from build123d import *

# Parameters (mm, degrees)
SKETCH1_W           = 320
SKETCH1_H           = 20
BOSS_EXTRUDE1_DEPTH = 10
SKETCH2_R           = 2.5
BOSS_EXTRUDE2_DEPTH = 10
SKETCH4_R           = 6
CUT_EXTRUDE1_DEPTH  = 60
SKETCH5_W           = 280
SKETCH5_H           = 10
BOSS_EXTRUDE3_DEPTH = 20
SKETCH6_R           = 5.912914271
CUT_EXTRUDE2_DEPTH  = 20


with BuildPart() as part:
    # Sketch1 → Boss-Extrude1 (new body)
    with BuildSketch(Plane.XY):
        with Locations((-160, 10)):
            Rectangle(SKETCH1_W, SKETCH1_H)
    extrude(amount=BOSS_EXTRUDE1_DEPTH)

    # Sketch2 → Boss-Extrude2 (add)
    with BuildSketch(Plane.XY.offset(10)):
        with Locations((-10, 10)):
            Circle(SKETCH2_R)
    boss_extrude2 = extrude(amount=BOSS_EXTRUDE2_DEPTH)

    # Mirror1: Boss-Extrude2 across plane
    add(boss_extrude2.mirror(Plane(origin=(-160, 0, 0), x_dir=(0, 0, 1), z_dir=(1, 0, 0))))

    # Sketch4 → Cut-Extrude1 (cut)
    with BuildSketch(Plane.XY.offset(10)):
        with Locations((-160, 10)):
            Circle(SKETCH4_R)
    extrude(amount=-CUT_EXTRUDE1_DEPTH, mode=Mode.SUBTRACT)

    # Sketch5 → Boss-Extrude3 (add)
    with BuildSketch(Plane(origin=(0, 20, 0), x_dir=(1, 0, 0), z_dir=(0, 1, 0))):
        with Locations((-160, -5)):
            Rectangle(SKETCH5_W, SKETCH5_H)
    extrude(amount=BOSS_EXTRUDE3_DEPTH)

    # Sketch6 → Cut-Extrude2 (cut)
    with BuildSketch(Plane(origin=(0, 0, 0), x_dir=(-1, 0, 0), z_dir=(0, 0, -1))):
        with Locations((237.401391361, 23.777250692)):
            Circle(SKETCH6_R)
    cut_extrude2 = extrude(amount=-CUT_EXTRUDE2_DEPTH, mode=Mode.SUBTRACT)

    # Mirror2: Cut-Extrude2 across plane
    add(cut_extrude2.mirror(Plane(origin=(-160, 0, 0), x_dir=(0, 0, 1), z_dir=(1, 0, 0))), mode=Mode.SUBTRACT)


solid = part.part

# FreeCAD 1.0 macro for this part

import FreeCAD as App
import Part
import Sketcher

doc = App.newDocument("Part")
body = doc.addObject("PartDesign::Body", "Body")

# Sketch on XY plane
sketch1 = body.newObject("Sketcher::SketchObject", "Sketch")
sketch1.AttachmentSupport = (doc.getObject("XY_Plane"), [""])
sketch1.MapMode = "FlatFace"
sketch1.addGeometry([
    Part.LineSegment(App.Vector(-320, 20, 0), App.Vector(-320, 0, 0)),
    Part.LineSegment(App.Vector(-320, 0, 0), App.Vector(0, 0, 0)),
    Part.LineSegment(App.Vector(0, 0, 0), App.Vector(0, 20, 0)),
    Part.LineSegment(App.Vector(0, 20, 0), App.Vector(-320, 20, 0)),
], False)
sketch1.addConstraint([
    Sketcher.Constraint("Coincident", 0, 2, 1, 1),
    Sketcher.Constraint("Coincident", 1, 2, 2, 1),
    Sketcher.Constraint("Coincident", 2, 2, 3, 1),
    Sketcher.Constraint("Coincident", 3, 2, 0, 1),
    Sketcher.Constraint("Vertical", 0),
    Sketcher.Constraint("Horizontal", 1),
    Sketcher.Constraint("Vertical", 2),
    Sketcher.Constraint("Horizontal", 3),
    Sketcher.Constraint("Coincident", 1, 2, -1, 1),
    Sketcher.Constraint("DistanceX", 1, 1, 1, 2, 320.0),
    Sketcher.Constraint("DistanceY", 0, 2, 0, 1, 20.0),
])
pad1 = body.newObject("PartDesign::Pad", "Pad")
pad1.Profile = sketch1
pad1.Length = 10

# Sketch on XY plane
sketch2 = body.newObject("Sketcher::SketchObject", "Sketch001")
sketch2.AttachmentSupport = (doc.getObject("XY_Plane"), [""])
sketch2.MapMode = "FlatFace"
sketch2.AttachmentOffset = App.Placement(App.Vector(0, 0, 10), App.Rotation())
sketch2.addGeometry(Part.Circle(App.Vector(-10, 10, 0), App.Vector(0, 0, 1), 2.5), False)
sketch2.addConstraint([
    Sketcher.Constraint("Diameter", 0, 5.0),
    Sketcher.Constraint("DistanceX", 0, 3, -1, 1, 10.0),
    Sketcher.Constraint("DistanceY", -1, 1, 0, 3, 10.0),
])
pad2 = body.newObject("PartDesign::Pad", "Pad001")
pad2.Profile = sketch2
pad2.Length = 10
doc.recompute()

datumplane = body.newObject("PartDesign::Plane", "DatumPlane")
datumplane.AttachmentSupport = (doc.getObject("YZ_Plane"), [""])
datumplane.MapMode = "FlatFace"
datumplane.AttachmentOffset = App.Placement(App.Vector(0, 0, -160), App.Rotation())
mirrored = body.newObject("PartDesign::Mirrored", "Mirrored")
mirrored.Originals = [pad2]
mirrored.MirrorPlane = (datumplane, [""])
body.Tip = mirrored

# Sketch on XY plane
sketch3 = body.newObject("Sketcher::SketchObject", "Sketch002")
sketch3.AttachmentSupport = (doc.getObject("XY_Plane"), [""])
sketch3.MapMode = "FlatFace"
sketch3.AttachmentOffset = App.Placement(App.Vector(0, 0, 10), App.Rotation())
sketch3.addGeometry(Part.Circle(App.Vector(-160, 10, 0), App.Vector(0, 0, 1), 6), False)
sketch3.addConstraint([
    Sketcher.Constraint("Diameter", 0, 12.0),
    Sketcher.Constraint("DistanceX", 0, 3, -1, 1, 160.0),
    Sketcher.Constraint("DistanceY", -1, 1, 0, 3, 10.0),
])
pocket1 = body.newObject("PartDesign::Pocket", "Pocket")
pocket1.Profile = sketch3
pocket1.Length = 60

# Sketch on XZ plane
sketch4 = body.newObject("Sketcher::SketchObject", "Sketch003")
sketch4.AttachmentSupport = (doc.getObject("XZ_Plane"), [""])
sketch4.MapMode = "FlatFace"
sketch4.AttachmentOffset = App.Placement(App.Vector(0, 0, -20), App.Rotation())
sketch4.addGeometry([
    Part.LineSegment(App.Vector(-300, 0, 0), App.Vector(-300, 10, 0)),
    Part.LineSegment(App.Vector(-300, 10, 0), App.Vector(-20, 10, 0)),
    Part.LineSegment(App.Vector(-20, 10, 0), App.Vector(-20, 0, 0)),
    Part.LineSegment(App.Vector(-20, 0, 0), App.Vector(-300, 0, 0)),
], False)
sketch4.addConstraint([
    Sketcher.Constraint("Coincident", 0, 2, 1, 1),
    Sketcher.Constraint("Coincident", 1, 2, 2, 1),
    Sketcher.Constraint("Coincident", 2, 2, 3, 1),
    Sketcher.Constraint("Coincident", 3, 2, 0, 1),
    Sketcher.Constraint("Vertical", 0),
    Sketcher.Constraint("Horizontal", 1),
    Sketcher.Constraint("Vertical", 2),
    Sketcher.Constraint("Horizontal", 3),
    Sketcher.Constraint("PointOnObject", 2, 2, -1),
    Sketcher.Constraint("DistanceX", 1, 1, 1, 2, 280.0),
    Sketcher.Constraint("DistanceY", 0, 1, 0, 2, 10.0),
    Sketcher.Constraint("DistanceX", 0, 2, -1, 1, 300.0),
])
pad3 = body.newObject("PartDesign::Pad", "Pad002")
pad3.Profile = sketch4
pad3.Length = 20
pad3.Reversed = True

# Sketch on XY plane
sketch5 = body.newObject("Sketcher::SketchObject", "Sketch004")
sketch5.AttachmentSupport = (doc.getObject("XY_Plane"), [""])
sketch5.MapMode = "FlatFace"
sketch5.addGeometry(Part.Circle(App.Vector(-237, 24, 0), App.Vector(0, 0, 1), 6), False)
sketch5.addConstraint([
    Sketcher.Constraint("Diameter", 0, 11.825829),
    Sketcher.Constraint("DistanceX", 0, 3, -1, 1, 237.401391),
    Sketcher.Constraint("DistanceY", -1, 1, 0, 3, 23.777251),
])
pocket2 = body.newObject("PartDesign::Pocket", "Pocket001")
pocket2.Profile = sketch5
pocket2.Length = 20
pocket2.Reversed = True
doc.recompute()

datumplane2 = body.newObject("PartDesign::Plane", "DatumPlane001")
datumplane2.AttachmentSupport = (doc.getObject("YZ_Plane"), [""])
datumplane2.MapMode = "FlatFace"
datumplane2.AttachmentOffset = App.Placement(App.Vector(0, 0, -160), App.Rotation())
mirrored2 = body.newObject("PartDesign::Mirrored", "Mirrored001")
mirrored2.Originals = [pocket2]
mirrored2.MirrorPlane = (datumplane2, [""])
body.Tip = mirrored2

doc.recompute()
